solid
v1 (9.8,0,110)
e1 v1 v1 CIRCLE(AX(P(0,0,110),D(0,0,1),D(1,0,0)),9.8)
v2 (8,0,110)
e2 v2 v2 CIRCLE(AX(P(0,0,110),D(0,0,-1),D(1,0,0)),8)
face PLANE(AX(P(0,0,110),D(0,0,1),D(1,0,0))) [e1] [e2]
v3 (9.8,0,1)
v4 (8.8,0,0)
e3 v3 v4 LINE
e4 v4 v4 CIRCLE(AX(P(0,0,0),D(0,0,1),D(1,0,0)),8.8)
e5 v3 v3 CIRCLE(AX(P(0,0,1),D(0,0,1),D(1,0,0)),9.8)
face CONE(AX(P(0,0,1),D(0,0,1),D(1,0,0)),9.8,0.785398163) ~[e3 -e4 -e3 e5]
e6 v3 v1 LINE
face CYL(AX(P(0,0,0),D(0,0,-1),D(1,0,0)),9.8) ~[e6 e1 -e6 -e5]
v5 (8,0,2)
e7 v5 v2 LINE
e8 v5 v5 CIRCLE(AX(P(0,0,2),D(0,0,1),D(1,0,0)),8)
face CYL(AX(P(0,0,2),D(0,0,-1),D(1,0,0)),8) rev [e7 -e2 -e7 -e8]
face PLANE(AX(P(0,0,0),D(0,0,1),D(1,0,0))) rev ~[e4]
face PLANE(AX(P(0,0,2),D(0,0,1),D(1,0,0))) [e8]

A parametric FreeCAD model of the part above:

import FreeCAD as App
import Part
import Sketcher
Q = App.Units.Quantity


def edges_at(feature, points):
    """Names of the edges that pass closest to the given points."""
    edges = feature.Shape.Edges
    near = lambda p: min(range(len(edges)), key=lambda i: edges[i].distToShape(Part.Vertex(*p))[0])
    return sorted({f"Edge{near(p) + 1}" for p in points})

doc = App.newDocument("Part")
params = doc.addObject("Spreadsheet::Sheet", "Params")
for row, (alias, value) in enumerate([
    ("sketch1_diameter", "16 mm"),
    ("pad1_length", "110 mm"),
    ("sketch2_diameter", "19.6 mm"),
    ("pad2_length", "110 mm"),
    ("chamfer_size", "1 mm"),
], start=1):
    params.set(f"A{row}", alias)
    params.set(f"B{row}", "=" + value)
    params.setAlias(f"B{row}", alias)

body = doc.addObject("PartDesign::Body", "Body")

sketch1 = body.newObject("Sketcher::SketchObject", "Sketch")
sketch1.AttachmentSupport = (doc.getObject("XY_Plane"), [""])
sketch1.MapMode = "FlatFace"
sketch1.AttachmentOffset = App.Placement(App.Vector(0, 0, 2), App.Rotation())
sketch1.addGeometry(Part.Circle(App.Vector(0, 0, 0), App.Vector(0, 0, 1), 8), False)
sketch1.addConstraint(Sketcher.Constraint("Coincident", 0, 3, -1, 1))
sketch1.addConstraint(Sketcher.Constraint("Diameter", 0, Q("16 mm")))
sketch1.setExpression("Constraints[1]", "Params.sketch1_diameter")
pad1 = body.newObject("PartDesign::Pad", "Pad")
pad1.Profile = sketch1
pad1.setExpression("Length", "Params.pad1_length")
body2 = doc.addObject("PartDesign::Body", "Body001")

sketch2 = body2.newObject("Sketcher::SketchObject", "Sketch001")
sketch2.AttachmentSupport = (doc.getObject("XY_Plane001"), [""])
sketch2.MapMode = "FlatFace"
sketch2.addGeometry(Part.Circle(App.Vector(0, 0, 0), App.Vector(0, 0, 1), 9.8), False)
sketch2.addConstraint(Sketcher.Constraint("Coincident", 0, 3, -1, 1))
sketch2.addConstraint(Sketcher.Constraint("Diameter", 0, Q("19.6 mm")))
sketch2.setExpression("Constraints[1]", "Params.sketch2_diameter")
pad2 = body2.newObject("PartDesign::Pad", "Pad001")
pad2.Profile = sketch2
pad2.setExpression("Length", "Params.pad2_length")
doc.recompute()

boolean = body2.newObject("PartDesign::Boolean", "Boolean")
boolean.Type = "Cut"
boolean.addObjects([body])
doc.recompute()

chamfer = body2.newObject("PartDesign::Chamfer", "Chamfer")
chamfer.Base = (boolean, edges_at(boolean, [(-9.8, 0, 0)]))
chamfer.setExpression("Size", "Params.chamfer_size")

doc.recompute()
